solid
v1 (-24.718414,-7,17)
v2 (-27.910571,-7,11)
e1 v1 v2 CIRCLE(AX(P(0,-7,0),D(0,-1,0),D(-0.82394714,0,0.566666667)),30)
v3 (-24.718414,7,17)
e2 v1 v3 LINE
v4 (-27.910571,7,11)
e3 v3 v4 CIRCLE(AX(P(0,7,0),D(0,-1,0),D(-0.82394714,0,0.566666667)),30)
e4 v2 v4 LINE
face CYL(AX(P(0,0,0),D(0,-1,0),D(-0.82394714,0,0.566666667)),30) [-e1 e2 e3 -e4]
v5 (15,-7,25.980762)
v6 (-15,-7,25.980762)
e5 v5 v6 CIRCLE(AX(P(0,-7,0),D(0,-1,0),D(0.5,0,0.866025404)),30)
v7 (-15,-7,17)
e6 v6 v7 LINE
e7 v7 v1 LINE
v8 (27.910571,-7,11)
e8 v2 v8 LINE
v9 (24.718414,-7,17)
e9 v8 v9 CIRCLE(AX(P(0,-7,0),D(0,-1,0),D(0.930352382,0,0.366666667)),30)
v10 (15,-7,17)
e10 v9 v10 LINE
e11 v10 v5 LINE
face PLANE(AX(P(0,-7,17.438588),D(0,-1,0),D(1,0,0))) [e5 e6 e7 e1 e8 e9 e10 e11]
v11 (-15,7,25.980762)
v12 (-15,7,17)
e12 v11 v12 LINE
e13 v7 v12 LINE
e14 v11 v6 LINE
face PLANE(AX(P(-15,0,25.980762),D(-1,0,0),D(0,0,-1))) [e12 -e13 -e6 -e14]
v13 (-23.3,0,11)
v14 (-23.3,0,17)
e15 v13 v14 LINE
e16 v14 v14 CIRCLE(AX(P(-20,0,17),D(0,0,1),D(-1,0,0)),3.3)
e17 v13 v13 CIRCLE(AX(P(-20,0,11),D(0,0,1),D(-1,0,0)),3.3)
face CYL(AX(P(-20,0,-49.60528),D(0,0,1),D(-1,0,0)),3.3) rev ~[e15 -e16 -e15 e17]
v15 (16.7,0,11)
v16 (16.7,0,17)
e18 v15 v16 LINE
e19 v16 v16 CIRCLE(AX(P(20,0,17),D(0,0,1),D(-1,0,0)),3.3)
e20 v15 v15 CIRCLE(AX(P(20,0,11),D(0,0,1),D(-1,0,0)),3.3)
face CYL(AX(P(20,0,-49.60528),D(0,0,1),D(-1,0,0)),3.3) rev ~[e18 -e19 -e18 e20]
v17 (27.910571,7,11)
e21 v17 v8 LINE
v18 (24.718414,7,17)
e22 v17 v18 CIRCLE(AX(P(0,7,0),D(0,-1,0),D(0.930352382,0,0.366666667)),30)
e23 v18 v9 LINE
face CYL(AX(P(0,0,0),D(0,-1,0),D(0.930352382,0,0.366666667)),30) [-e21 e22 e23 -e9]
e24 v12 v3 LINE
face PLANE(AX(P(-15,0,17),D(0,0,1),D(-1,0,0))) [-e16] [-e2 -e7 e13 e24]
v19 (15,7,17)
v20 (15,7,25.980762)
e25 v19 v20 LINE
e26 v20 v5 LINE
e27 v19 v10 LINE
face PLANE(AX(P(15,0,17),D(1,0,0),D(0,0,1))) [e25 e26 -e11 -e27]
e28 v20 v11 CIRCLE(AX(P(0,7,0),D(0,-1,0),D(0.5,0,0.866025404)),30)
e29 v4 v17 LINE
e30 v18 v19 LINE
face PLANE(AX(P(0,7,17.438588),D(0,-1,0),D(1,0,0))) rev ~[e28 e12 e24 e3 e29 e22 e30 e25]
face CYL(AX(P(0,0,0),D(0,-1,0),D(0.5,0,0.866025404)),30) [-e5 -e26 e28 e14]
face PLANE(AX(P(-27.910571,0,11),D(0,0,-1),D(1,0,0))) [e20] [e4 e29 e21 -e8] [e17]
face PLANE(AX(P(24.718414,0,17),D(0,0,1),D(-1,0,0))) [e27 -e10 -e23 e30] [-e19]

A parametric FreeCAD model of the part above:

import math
import FreeCAD as App
import Part
import Sketcher

V = App.Vector

doc = App.newDocument("Part")
params = doc.addObject("Spreadsheet::Sheet", "Params")
for row, (alias, value) in enumerate([
    ("sketch1_radius", "30 mm"),
    ("pad1_length", "14 mm"),
    ("sketch2_diameter", "6.6 mm"),
    ("hole_diameter", "6.6 mm"),
], start=1):
    params.set(f"A{row}", alias)
    params.set(f"B{row}", "=" + value)
    params.setAlias(f"B{row}", alias)

body = doc.addObject("PartDesign::Body", "Body")

sketch1 = body.newObject("Sketcher::SketchObject", "Sketch")
sketch1.AttachmentSupport = (doc.getObject("XZ_Plane"), [""])
sketch1.MapMode = "FlatFace"
sketch1.addGeometry(Part.LineSegment(V(-28, 11, 0), V(28, 11, 0)), False)
sketch1.addGeometry(Part.ArcOfCircle(Part.Circle(V(0, 0, 0), V(0, 0, 1), 30), math.radians(21.51), math.radians(34.52)), False)
sketch1.addGeometry(Part.LineSegment(V(25, 17, 0), V(15, 17, 0)), False)
sketch1.addGeometry(Part.LineSegment(V(15, 17, 0), V(15, 26, 0)), False)
sketch1.addGeometry(Part.ArcOfCircle(Part.Circle(V(0, 0, 0), V(0, 0, 1), 30), math.radians(60), math.radians(120)), False)
sketch1.addGeometry(Part.LineSegment(V(-15, 26, 0), V(-15, 17, 0)), False)
sketch1.addGeometry(Part.LineSegment(V(-15, 17, 0), V(-25, 17, 0)), False)
sketch1.addGeometry(Part.ArcOfCircle(Part.Circle(V(0, 0, 0), V(0, 0, 1), 30), math.radians(145.48), math.radians(158.49)), False)
sketch1.addConstraint(Sketcher.Constraint("Coincident", 0, 2, 1, 1))
sketch1.addConstraint(Sketcher.Constraint("Coincident", 1, 2, 2, 1))
sketch1.addConstraint(Sketcher.Constraint("Coincident", 2, 2, 3, 1))
sketch1.addConstraint(Sketcher.Constraint("Coincident", 3, 2, 4, 1))
sketch1.addConstraint(Sketcher.Constraint("Coincident", 4, 2, 5, 1))
sketch1.addConstraint(Sketcher.Constraint("Coincident", 5, 2, 6, 1))
sketch1.addConstraint(Sketcher.Constraint("Coincident", 6, 2, 7, 1))
sketch1.addConstraint(Sketcher.Constraint("Coincident", 7, 2, 0, 1))
sketch1.addConstraint(Sketcher.Constraint("Horizontal", 0))
sketch1.addConstraint(Sketcher.Constraint("Horizontal", 2))
sketch1.addConstraint(Sketcher.Constraint("Vertical", 3))
sketch1.addConstraint(Sketcher.Constraint("Vertical", 5))
sketch1.addConstraint(Sketcher.Constraint("Horizontal", 6))
sketch1.addConstraint(Sketcher.Constraint("Coincident", 1, 3, -1, 1))
sketch1.addConstraint(Sketcher.Constraint("Coincident", 4, 3, -1, 1))
sketch1.addConstraint(Sketcher.Constraint("Coincident", 7, 3, -1, 1))
sketch1.addConstraint(Sketcher.Constraint("Equal", 1, 4))
sketch1.addConstraint(Sketcher.Constraint("Equal", 4, 7))
sketch1.addConstraint(Sketcher.Constraint("Symmetric", 2, 2, 5, 2, -2))
sketch1.addConstraint(Sketcher.Constraint("Radius", 1, 30.0))
sketch1.addConstraint(Sketcher.Constraint("DistanceY", -1, 1, 0, 2, 11.0))
sketch1.addConstraint(Sketcher.Constraint("DistanceY", -1, 1, 1, 2, 17.0))
sketch1.addConstraint(Sketcher.Constraint("DistanceX", -1, 1, 2, 2, 15.0))
sketch1.setExpression("Constraints[19]", "Params.sketch1_radius")
pad1 = body.newObject("PartDesign::Pad", "Pad")
pad1.Profile = sketch1
pad1.setExpression("Length", "Params.pad1_length")
pad1.Midplane = True

sketch2 = body.newObject("Sketcher::SketchObject", "Sketch001")
sketch2.AttachmentSupport = (doc.getObject("XY_Plane"), [""])
sketch2.MapMode = "FlatFace"
sketch2.AttachmentOffset = App.Placement(V(0, 0, 11), App.Rotation())
sketch2.addGeometry(Part.Circle(V(-20, 0, 0), V(0, 0, 1), 3.3), False)
sketch2.addGeometry(Part.Circle(V(20, 0, 0), V(0, 0, 1), 3.3), False)
sketch2.addConstraint(Sketcher.Constraint("Equal", 0, 1))
sketch2.addConstraint(Sketcher.Constraint("Symmetric", 0, 3, 1, 3, -1, 1))
sketch2.addConstraint(Sketcher.Constraint("PointOnObject", 0, 3, -1))
sketch2.addConstraint(Sketcher.Constraint("Diameter", 0, 6.6))
sketch2.addConstraint(Sketcher.Constraint("DistanceX", 0, 3, -1, 1, 20.0))
sketch2.setExpression("Constraints[3]", "Params.sketch2_diameter")
doc.recompute()
hole = body.newObject("PartDesign::Hole", "Hole")
hole.Profile = sketch2
hole.ThreadType = "None"
hole.setExpression("Diameter", "Params.hole_diameter")
hole.DepthType = "ThroughAll"
hole.Reversed = True

doc.recompute()
